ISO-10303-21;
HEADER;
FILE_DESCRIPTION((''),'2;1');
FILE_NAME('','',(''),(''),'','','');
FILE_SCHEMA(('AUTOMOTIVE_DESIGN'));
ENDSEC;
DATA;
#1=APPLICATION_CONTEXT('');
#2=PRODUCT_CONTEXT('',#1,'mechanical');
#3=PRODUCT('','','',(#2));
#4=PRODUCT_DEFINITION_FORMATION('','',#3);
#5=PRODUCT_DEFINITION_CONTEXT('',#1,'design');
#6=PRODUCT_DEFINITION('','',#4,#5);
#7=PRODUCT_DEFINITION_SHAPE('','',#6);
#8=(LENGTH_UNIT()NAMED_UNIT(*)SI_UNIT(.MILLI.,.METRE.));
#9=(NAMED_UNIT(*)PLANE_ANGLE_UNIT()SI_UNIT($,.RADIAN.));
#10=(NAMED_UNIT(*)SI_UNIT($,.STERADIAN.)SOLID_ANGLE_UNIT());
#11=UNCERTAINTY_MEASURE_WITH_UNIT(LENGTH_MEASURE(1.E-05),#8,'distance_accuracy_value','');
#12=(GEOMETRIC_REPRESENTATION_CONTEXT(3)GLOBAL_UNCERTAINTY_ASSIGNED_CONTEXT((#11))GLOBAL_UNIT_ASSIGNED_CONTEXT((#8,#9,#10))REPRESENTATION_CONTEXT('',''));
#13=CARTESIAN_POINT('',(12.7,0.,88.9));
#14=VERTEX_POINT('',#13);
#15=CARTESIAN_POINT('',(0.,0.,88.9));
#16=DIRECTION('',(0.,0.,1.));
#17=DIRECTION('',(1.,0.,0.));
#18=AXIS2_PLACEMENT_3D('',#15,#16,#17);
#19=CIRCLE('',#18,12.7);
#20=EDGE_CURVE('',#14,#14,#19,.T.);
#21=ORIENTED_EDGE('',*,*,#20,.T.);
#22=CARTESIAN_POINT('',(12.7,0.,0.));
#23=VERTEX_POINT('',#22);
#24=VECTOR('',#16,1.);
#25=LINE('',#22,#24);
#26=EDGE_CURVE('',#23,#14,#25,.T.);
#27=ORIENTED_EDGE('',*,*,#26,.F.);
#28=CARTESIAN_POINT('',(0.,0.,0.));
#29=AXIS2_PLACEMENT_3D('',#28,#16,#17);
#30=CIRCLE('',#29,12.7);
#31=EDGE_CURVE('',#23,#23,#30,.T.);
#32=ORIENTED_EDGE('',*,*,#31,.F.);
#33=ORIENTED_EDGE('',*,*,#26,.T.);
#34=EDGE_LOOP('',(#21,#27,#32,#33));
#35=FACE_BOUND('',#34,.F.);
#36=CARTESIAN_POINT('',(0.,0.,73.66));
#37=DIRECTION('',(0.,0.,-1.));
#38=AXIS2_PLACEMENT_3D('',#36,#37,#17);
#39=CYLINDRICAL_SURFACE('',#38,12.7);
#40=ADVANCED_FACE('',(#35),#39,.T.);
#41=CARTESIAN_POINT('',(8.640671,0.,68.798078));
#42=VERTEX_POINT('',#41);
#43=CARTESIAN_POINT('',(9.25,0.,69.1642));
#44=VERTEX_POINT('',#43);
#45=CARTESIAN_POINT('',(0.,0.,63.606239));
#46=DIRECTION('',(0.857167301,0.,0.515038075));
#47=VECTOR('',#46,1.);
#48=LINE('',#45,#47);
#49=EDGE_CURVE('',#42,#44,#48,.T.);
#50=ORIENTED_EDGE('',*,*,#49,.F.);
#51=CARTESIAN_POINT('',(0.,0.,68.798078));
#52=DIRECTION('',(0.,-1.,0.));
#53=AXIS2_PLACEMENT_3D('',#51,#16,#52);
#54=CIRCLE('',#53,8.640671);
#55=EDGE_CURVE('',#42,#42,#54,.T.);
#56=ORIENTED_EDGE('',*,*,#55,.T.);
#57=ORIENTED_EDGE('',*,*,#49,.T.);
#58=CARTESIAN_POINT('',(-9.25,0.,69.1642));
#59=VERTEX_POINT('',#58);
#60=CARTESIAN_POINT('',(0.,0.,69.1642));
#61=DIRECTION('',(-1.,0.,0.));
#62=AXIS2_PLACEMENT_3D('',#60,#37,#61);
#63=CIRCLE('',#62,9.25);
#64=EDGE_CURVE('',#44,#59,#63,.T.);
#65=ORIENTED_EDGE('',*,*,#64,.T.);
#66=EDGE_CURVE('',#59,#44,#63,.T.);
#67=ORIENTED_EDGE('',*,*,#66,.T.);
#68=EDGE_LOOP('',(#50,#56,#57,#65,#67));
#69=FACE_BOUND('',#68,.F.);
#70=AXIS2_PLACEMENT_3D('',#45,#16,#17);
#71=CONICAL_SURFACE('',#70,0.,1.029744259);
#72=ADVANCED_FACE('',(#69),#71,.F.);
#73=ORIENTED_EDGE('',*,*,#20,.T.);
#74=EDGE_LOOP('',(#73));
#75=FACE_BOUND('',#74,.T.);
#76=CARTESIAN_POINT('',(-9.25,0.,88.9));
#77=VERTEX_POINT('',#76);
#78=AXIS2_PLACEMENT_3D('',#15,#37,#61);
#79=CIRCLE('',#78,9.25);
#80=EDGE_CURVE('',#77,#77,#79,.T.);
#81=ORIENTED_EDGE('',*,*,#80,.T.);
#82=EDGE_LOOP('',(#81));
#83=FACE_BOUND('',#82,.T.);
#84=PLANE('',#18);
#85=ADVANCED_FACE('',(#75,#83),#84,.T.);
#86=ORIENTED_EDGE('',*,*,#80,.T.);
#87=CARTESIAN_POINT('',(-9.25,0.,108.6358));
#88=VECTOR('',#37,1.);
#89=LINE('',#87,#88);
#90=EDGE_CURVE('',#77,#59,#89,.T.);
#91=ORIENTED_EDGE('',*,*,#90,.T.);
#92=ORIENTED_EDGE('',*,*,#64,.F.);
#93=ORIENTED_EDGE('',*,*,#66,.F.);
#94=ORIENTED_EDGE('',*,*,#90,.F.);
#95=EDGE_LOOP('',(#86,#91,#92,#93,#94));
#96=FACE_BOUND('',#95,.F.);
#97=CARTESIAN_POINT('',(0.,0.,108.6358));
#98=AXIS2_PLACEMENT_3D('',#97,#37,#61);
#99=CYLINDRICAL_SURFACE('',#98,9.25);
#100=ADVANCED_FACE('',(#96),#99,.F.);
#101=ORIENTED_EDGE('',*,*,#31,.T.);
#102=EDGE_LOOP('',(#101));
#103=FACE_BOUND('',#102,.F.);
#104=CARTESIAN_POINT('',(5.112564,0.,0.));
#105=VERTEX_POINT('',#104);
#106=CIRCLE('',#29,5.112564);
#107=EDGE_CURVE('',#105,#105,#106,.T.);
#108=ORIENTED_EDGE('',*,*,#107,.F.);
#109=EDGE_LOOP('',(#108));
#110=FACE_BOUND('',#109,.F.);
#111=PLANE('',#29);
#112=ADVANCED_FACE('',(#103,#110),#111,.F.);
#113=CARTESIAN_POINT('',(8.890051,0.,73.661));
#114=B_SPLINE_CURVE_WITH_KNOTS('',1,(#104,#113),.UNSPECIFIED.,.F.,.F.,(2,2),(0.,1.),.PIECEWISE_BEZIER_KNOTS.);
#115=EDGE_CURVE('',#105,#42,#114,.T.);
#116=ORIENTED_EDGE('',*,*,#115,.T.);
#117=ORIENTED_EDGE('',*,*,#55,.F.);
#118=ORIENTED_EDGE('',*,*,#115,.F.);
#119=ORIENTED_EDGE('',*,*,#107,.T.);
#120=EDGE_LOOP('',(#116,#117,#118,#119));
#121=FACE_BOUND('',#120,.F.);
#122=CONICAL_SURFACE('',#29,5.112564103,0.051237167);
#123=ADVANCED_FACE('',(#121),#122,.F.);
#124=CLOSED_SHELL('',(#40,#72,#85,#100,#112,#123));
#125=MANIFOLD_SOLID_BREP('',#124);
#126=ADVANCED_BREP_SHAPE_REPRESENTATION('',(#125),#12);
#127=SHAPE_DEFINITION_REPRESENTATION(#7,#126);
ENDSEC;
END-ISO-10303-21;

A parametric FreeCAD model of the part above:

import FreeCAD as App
import Part
import Sketcher
from FreeCAD import Vector
Q = App.Units.Quantity

doc = App.newDocument("Part")
params = doc.addObject("Spreadsheet::Sheet", "Params")
for row, (alias, value) in enumerate([
    ("sketch1_diameter", "1 in"),
    ("pad1_length", "2.9 in"),
    ("pocket1_length", "73.661 mm"),
    ("pocket1_taper", "2.935673 deg"),
    ("sketch3_diameter", "1 in"),
    ("pad2_length", "0.6 in"),
    ("hole_diameter", "18.5 mm"),
    ("hole_depth", "0.777 in"),
], start=1):
    params.set(f"A{row}", alias)
    params.set(f"B{row}", "=" + value)
    params.setAlias(f"B{row}", alias)

body = doc.addObject("PartDesign::Body", "Body")

# Sketch on XY plane
sketch1 = doc.addObject("Sketcher::SketchObject", "Sketch")
body.addObject(sketch1)
sketch1.AttachmentSupport = (doc.XY_Plane, [""])
sketch1.MapMode = "FlatFace"
sketch1.addGeometry(Part.Circle(Vector(0, 0, 0), Vector(0, 0, 1), 13), False)
sketch1.addConstraint([
    Sketcher.Constraint("Coincident", 0, 3, -1, 1),
    Sketcher.Constraint("Diameter", 0, Q("1 in")),
])
sketch1.setExpression("Constraints[1]", "Params.sketch1_diameter")
pad1 = doc.addObject("PartDesign::Pad", "Pad")
body.addObject(pad1)
pad1.Profile = sketch1
pad1.setExpression("Length", "Params.pad1_length")

# Sketch on XY plane
sketch2 = doc.addObject("Sketcher::SketchObject", "Sketch001")
body.addObject(sketch2)
sketch2.AttachmentSupport = (doc.XY_Plane, [""])
sketch2.MapMode = "FlatFace"
sketch2.addGeometry(Part.Circle(Vector(0, 0, 0), Vector(0, 0, 1), 5), False)
sketch2.addConstraint([
    Sketcher.Constraint("Coincident", 0, 3, -1, 1),
    Sketcher.Constraint("Diameter", 0, 10.225128),
])
pocket1 = doc.addObject("PartDesign::Pocket", "Pocket")
body.addObject(pocket1)
pocket1.Profile = sketch2
pocket1.setExpression("Length", "Params.pocket1_length")
pocket1.Reversed = True
pocket1.setExpression("TaperAngle", "Params.pocket1_taper")

# Sketch on XY plane
sketch3 = doc.addObject("Sketcher::SketchObject", "Sketch002")
body.addObject(sketch3)
sketch3.AttachmentSupport = (doc.XY_Plane, [""])
sketch3.MapMode = "FlatFace"
sketch3.AttachmentOffset = App.Placement(Vector(0, 0, 2.9 * 25.4), App.Rotation())
sketch3.addGeometry(Part.Circle(Vector(0, 0, 0), Vector(0, 0, 1), 13), False)
sketch3.addConstraint([
    Sketcher.Constraint("Coincident", 0, 3, -1, 1),
    Sketcher.Constraint("Diameter", 0, Q("1 in")),
])
sketch3.setExpression("Constraints[1]", "Params.sketch3_diameter")
pad2 = doc.addObject("PartDesign::Pad", "Pad001")
body.addObject(pad2)
pad2.Profile = sketch3
pad2.setExpression("Length", "Params.pad2_length")

# Sketch on XY plane
sketch4 = doc.addObject("Sketcher::SketchObject", "Sketch003")
body.addObject(sketch4)
sketch4.AttachmentSupport = (doc.XY_Plane, [""])
sketch4.MapMode = "FlatFace"
sketch4.AttachmentOffset = App.Placement(Vector(0, 0, 3.5 * 25.4), App.Rotation())
sketch4.addGeometry(Part.Circle(Vector(0, 0, 0), Vector(0, 0, 1), 9), False)
sketch4.addConstraint([
    Sketcher.Constraint("Coincident", 0, 3, -1, 1),
    Sketcher.Constraint("Diameter", 0, 18.5),
])
doc.recompute()
hole = doc.addObject("PartDesign::Hole", "Hole")
body.addObject(hole)
hole.Profile = sketch4
hole.ThreadType = "None"
hole.setExpression("Diameter", "Params.hole_diameter")
hole.DepthType = "Dimension"
hole.setExpression("Depth", "Params.hole_depth")
hole.DrillPoint = "Angled"
hole.DrillPointAngle = 118

doc.recompute()
